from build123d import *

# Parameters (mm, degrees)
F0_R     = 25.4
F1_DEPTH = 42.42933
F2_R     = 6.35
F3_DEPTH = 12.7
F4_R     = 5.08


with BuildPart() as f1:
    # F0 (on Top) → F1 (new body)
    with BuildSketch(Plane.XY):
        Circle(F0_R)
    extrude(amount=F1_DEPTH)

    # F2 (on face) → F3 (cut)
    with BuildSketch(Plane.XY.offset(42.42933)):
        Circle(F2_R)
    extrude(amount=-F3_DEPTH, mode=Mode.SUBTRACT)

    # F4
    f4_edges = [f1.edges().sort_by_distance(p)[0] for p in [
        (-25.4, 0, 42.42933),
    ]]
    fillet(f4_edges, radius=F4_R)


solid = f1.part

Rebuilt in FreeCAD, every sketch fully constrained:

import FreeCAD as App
import Part
import Sketcher
Q = App.Units.Quantity


def edges_at(feature, points):
    """Names of the edges that pass closest to the given points."""
    edges = feature.Shape.Edges
    near = lambda p: min(range(len(edges)), key=lambda i: edges[i].distToShape(Part.Vertex(*p))[0])
    return sorted({f"Edge{near(p) + 1}" for p in points})

doc = App.newDocument("Part")
params = doc.addObject("Spreadsheet::Sheet", "Params")
for row, (alias, value) in enumerate([
    ("sketch1_diameter", "2 in"),
    ("pad1_length", "42.42933 mm"),
    ("sketch2_diameter", "0.5 in"),
    ("pocket1_length", "0.5 in"),
    ("fillet_radius", "0.2 in"),
], start=1):
    params.set(f"A{row}", alias)
    params.set(f"B{row}", "=" + value)
    params.setAlias(f"B{row}", alias)

body = doc.addObject("PartDesign::Body", "Body")

sketch1 = body.newObject("Sketcher::SketchObject", "Sketch")
sketch1.AttachmentSupport = (doc.getObject("XY_Plane"), [""])
sketch1.MapMode = "FlatFace"
sketch1.addGeometry(Part.Circle(App.Vector(0, 0, 0), App.Vector(0, 0, 1), 25.4), False)
sketch1.addConstraint([
    Sketcher.Constraint("Coincident", 0, 3, -1, 1),
    Sketcher.Constraint("Diameter", 0, Q("2 in")),
])
sketch1.setExpression("Constraints[1]", "Params.sketch1_diameter")
pad1 = body.newObject("PartDesign::Pad", "Pad")
pad1.Profile = sketch1
pad1.setExpression("Length", "Params.pad1_length")

sketch2 = body.newObject("Sketcher::SketchObject", "Sketch001")
sketch2.AttachmentSupport = (doc.getObject("XY_Plane"), [""])
sketch2.MapMode = "FlatFace"
sketch2.AttachmentOffset = App.Placement(App.Vector(0, 0, 42.42933), App.Rotation())
sketch2.addGeometry(Part.Circle(App.Vector(0, 0, 0), App.Vector(0, 0, 1), 6.35), False)
sketch2.addConstraint([
    Sketcher.Constraint("Coincident", 0, 3, -1, 1),
    Sketcher.Constraint("Diameter", 0, Q("0.5 in")),
])
sketch2.setExpression("Constraints[1]", "Params.sketch2_diameter")
pocket1 = body.newObject("PartDesign::Pocket", "Pocket")
pocket1.Profile = sketch2
pocket1.setExpression("Length", "Params.pocket1_length")
doc.recompute()

fillet = body.newObject("PartDesign::Fillet", "Fillet")
fillet.Base = (pocket1, edges_at(pocket1, [(-25.4, 0, 42.429)]))
fillet.setExpression("Radius", "Params.fillet_radius")

doc.recompute()
